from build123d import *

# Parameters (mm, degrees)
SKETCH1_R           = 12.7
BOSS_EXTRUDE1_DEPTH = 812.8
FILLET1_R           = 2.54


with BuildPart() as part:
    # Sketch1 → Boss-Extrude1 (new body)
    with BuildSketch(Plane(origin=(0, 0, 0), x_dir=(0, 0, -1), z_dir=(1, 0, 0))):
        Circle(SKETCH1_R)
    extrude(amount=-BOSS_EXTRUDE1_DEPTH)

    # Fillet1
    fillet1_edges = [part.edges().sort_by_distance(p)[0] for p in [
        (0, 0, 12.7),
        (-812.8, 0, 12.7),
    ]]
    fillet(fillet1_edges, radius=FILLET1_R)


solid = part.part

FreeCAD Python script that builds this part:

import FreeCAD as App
import Part
import Sketcher
Q = App.Units.Quantity


def edges_at(feature, points):
    """Names of the edges that pass closest to the given points."""
    edges = feature.Shape.Edges
    near = lambda p: min(range(len(edges)), key=lambda i: edges[i].distToShape(Part.Vertex(*p))[0])
    return sorted({f"Edge{near(p) + 1}" for p in points})

doc = App.newDocument("Part")
body = doc.addObject("PartDesign::Body", "Body")

sketch1 = doc.addObject("Sketcher::SketchObject", "Sketch")
body.addObject(sketch1)
sketch1.AttachmentSupport = (doc.YZ_Plane, [""])
sketch1.MapMode = "FlatFace"
sketch1.addGeometry(Part.Circle(App.Vector(0, 0, 0), App.Vector(0, 0, 1), 12.7), False)
sketch1.addConstraint([
    Sketcher.Constraint("Coincident", 0, 3, -1, 1),
    Sketcher.Constraint("Diameter", 0, Q("1 in")),
])
pad1 = doc.addObject("PartDesign::Pad", "Pad")
body.addObject(pad1)
pad1.Profile = sketch1
pad1.Length = Q("32 in")
pad1.Reversed = True
doc.recompute()

fillet = doc.addObject("PartDesign::Fillet", "Fillet")
body.addObject(fillet)
fillet.Base = (pad1, edges_at(pad1, [(0, 0, 12.7), (-812.8, 0, 12.7)]))
fillet.Radius = Q("0.1 in")

doc.recompute()
